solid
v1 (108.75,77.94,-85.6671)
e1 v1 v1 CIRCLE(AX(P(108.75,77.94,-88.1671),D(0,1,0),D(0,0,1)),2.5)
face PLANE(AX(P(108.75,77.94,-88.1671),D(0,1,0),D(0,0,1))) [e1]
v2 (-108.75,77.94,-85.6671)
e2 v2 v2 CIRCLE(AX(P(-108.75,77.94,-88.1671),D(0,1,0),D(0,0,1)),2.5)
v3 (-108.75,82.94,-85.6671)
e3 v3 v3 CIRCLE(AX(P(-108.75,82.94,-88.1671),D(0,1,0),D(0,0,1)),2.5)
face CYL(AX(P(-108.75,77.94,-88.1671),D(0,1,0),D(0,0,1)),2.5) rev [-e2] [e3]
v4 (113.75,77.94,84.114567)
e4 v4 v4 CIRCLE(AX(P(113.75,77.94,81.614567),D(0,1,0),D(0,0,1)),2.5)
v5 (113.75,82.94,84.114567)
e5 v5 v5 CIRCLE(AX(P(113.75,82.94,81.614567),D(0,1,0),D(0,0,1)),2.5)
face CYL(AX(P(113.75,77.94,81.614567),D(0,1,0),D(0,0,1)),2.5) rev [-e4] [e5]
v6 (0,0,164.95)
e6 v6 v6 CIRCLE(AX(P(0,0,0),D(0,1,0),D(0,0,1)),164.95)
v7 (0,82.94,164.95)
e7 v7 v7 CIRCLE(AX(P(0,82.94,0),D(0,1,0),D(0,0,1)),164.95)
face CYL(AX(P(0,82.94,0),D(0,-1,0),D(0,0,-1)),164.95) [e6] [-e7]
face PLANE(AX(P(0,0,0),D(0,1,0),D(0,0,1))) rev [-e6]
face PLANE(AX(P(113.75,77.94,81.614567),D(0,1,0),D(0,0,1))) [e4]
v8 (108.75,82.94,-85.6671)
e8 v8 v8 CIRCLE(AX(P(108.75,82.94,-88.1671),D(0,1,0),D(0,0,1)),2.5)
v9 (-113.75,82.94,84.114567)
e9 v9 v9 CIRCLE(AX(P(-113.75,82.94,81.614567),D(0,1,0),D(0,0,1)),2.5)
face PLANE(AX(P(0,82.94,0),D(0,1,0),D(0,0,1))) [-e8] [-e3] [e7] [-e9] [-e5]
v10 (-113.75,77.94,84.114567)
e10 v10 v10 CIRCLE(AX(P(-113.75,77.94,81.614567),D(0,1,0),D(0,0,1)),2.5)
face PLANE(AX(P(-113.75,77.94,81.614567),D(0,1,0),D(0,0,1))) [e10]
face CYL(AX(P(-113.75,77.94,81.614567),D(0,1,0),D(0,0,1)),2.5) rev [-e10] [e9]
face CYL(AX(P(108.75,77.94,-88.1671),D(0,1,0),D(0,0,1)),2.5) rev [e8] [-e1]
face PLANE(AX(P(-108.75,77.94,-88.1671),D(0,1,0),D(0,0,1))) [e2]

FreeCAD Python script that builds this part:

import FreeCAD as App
import Part
import Sketcher

V = App.Vector

doc = App.newDocument("Part")
params = doc.addObject("Spreadsheet::Sheet", "Params")
for row, (alias, value) in enumerate([
    ("sketch1_diameter", "329.9 mm"),
    ("pad1_length", "82.94 mm"),
    ("sketch2_diameter", "5 mm"),
    ("pocket1_length", "5 mm"),
], start=1):
    params.set(f"A{row}", alias)
    params.set(f"B{row}", "=" + value)
    params.setAlias(f"B{row}", alias)

body = doc.addObject("PartDesign::Body", "Body")

sketch1 = body.newObject("Sketcher::SketchObject", "Sketch")
sketch1.AttachmentSupport = (doc.getObject("XZ_Plane"), [""])
sketch1.MapMode = "FlatFace"
sketch1.addGeometry(Part.Circle(V(0, 0, 0), V(0, 0, 1), 164.95), False)
sketch1.addConstraint([
    Sketcher.Constraint("Coincident", 0, 3, -1, 1),
    Sketcher.Constraint("Diameter", 0, 329.9),
])
sketch1.setExpression("Constraints[1]", "Params.sketch1_diameter")
pad1 = body.newObject("PartDesign::Pad", "Pad")
pad1.Profile = sketch1
pad1.setExpression("Length", "Params.pad1_length")
pad1.Reversed = True

sketch2 = body.newObject("Sketcher::SketchObject", "Sketch001")
sketch2.AttachmentSupport = (doc.getObject("XZ_Plane"), [""])
sketch2.MapMode = "FlatFace"
sketch2.AttachmentOffset = App.Placement(V(0, 0, -82.94), App.Rotation())
sketch2.addGeometry([
    Part.Circle(V(-108.75, -88.1671, 0), V(0, 0, 1), 2.5),
    Part.Circle(V(108.75, -88.1671, 0), V(0, 0, 1), 2.5),
    Part.Circle(V(-113.75, 81.614567, 0), V(0, 0, 1), 2.5),
    Part.Circle(V(113.75, 81.614567, 0), V(0, 0, 1), 2.5),
], False)
sketch2.addConstraint([
    Sketcher.Constraint("Equal", 0, 1),
    Sketcher.Constraint("Equal", 1, 2),
    Sketcher.Constraint("Equal", 2, 3),
    Sketcher.Constraint("Symmetric", 0, 3, 1, 3, -2),
    Sketcher.Constraint("Symmetric", 2, 3, 3, 3, -2),
    Sketcher.Constraint("Diameter", 0, 5.0),
    Sketcher.Constraint("DistanceX", 2, 3, 0, 3, 5.0),
    Sketcher.Constraint("DistanceX", 0, 3, 1, 3, 217.5),
    Sketcher.Constraint("DistanceY", 0, 3, -1, 1, 88.1671),
    Sketcher.Constraint("DistanceY", -1, 1, 2, 3, 81.614567),
])
sketch2.setExpression("Constraints[5]", "Params.sketch2_diameter")
pocket1 = body.newObject("PartDesign::Pocket", "Pocket")
pocket1.Profile = sketch2
pocket1.setExpression("Length", "Params.pocket1_length")
pocket1.Reversed = True

doc.recompute()
